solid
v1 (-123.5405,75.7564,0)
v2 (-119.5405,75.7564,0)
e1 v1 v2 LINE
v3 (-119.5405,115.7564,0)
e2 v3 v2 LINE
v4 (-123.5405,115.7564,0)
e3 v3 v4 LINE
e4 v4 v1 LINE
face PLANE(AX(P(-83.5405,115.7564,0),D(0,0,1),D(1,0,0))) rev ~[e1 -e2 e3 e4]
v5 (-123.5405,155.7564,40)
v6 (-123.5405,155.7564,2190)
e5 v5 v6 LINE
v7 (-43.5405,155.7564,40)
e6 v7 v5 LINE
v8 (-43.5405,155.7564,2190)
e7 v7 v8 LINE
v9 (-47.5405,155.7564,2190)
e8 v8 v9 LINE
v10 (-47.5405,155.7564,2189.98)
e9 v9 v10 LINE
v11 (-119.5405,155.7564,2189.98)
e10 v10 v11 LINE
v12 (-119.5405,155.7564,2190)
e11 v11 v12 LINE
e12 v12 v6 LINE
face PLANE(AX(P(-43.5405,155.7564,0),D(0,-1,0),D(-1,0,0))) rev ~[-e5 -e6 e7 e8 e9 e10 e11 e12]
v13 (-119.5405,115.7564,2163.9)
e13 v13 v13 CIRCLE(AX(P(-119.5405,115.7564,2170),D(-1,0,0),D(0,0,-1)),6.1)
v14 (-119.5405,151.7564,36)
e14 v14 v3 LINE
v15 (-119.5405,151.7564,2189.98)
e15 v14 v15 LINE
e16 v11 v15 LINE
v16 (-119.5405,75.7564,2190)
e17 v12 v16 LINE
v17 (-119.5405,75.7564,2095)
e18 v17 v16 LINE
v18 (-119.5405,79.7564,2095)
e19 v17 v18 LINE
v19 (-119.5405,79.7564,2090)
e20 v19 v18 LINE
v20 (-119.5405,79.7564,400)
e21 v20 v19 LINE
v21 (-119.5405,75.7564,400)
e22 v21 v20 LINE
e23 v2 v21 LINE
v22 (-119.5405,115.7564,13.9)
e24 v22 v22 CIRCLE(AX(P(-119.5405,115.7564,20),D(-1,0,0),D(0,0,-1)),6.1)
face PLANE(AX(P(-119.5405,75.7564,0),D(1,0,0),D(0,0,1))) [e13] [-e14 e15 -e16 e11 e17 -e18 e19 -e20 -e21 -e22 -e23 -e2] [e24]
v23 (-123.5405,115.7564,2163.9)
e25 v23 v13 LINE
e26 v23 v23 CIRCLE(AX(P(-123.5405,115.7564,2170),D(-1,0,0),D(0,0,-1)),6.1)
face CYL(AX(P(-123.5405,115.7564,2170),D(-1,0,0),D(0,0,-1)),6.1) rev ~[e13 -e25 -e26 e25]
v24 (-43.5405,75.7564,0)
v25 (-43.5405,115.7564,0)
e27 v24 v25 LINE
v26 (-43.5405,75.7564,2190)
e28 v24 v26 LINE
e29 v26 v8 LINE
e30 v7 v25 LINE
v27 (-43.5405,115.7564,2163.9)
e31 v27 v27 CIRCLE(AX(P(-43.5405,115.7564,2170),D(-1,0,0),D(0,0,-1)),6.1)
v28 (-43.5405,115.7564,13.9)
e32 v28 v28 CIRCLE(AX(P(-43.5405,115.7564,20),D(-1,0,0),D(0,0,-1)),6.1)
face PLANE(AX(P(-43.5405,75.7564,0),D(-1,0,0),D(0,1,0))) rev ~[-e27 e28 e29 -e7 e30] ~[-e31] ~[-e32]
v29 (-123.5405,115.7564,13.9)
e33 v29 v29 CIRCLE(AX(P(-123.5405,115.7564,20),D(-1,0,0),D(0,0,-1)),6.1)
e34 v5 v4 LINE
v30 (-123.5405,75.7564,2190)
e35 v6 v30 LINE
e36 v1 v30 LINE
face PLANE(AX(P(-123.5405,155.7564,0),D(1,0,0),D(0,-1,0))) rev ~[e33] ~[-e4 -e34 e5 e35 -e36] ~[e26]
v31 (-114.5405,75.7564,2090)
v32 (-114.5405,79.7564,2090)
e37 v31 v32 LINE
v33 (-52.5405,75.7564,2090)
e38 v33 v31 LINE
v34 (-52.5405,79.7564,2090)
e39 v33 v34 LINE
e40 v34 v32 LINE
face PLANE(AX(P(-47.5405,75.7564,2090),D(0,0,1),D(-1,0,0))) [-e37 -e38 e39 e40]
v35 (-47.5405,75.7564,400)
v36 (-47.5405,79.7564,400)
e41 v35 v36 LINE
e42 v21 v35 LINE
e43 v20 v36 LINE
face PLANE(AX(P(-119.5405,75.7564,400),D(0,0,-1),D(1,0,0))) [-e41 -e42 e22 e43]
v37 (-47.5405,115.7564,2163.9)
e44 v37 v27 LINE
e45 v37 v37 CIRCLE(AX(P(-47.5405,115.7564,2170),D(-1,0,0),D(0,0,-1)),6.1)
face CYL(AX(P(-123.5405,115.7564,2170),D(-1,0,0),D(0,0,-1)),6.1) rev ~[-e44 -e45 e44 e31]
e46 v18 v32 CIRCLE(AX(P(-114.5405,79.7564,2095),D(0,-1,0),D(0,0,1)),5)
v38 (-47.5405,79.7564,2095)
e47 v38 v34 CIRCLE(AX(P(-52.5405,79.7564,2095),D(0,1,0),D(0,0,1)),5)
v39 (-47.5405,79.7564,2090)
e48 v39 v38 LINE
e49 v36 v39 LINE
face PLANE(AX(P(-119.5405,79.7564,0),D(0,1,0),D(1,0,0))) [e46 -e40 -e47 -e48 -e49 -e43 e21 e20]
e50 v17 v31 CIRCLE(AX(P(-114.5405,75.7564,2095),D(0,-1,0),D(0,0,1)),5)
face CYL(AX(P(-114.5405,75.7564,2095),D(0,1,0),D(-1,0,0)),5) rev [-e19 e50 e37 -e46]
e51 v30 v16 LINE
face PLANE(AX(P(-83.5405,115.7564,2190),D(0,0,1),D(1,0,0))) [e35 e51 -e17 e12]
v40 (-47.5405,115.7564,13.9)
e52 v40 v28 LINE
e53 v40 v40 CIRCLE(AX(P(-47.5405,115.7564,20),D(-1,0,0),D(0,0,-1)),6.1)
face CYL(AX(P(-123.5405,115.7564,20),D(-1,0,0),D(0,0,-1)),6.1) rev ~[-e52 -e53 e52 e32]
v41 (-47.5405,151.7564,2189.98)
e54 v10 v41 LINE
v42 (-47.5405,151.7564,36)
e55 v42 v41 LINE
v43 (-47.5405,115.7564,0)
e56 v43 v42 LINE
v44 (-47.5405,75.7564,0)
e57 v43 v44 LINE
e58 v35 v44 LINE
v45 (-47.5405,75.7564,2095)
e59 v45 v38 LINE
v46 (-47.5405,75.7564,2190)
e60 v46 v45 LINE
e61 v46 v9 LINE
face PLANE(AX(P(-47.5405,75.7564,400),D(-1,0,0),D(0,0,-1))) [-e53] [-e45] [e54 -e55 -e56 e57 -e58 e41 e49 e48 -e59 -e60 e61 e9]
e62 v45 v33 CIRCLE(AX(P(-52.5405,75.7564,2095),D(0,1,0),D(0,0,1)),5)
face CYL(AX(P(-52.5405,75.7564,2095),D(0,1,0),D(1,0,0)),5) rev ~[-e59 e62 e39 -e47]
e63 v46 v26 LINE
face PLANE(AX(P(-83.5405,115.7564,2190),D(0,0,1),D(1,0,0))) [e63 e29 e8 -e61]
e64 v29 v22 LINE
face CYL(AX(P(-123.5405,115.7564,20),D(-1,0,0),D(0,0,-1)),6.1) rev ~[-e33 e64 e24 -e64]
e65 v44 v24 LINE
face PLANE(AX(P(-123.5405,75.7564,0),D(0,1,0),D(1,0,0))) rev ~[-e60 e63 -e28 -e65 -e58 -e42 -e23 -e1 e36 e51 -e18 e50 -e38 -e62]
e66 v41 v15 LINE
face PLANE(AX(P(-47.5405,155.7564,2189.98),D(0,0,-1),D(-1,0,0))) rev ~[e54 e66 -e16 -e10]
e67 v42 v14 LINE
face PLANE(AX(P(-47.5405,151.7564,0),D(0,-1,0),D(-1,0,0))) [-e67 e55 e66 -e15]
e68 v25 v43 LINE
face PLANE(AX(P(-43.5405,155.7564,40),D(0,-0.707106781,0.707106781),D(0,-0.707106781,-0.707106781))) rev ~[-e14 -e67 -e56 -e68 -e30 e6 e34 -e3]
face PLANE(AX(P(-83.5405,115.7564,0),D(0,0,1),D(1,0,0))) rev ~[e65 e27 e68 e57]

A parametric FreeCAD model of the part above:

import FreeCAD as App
import Part
import Sketcher
from FreeCAD import Vector
Q = App.Units.Quantity


def edges_at(feature, points):
    """Names of the edges that pass closest to the given points."""
    edges = feature.Shape.Edges
    near = lambda p: min(range(len(edges)), key=lambda i: edges[i].distToShape(Part.Vertex(*p))[0])
    return sorted({f"Edge{near(p) + 1}" for p in points})

doc = App.newDocument("Part")
body = doc.addObject("PartDesign::Body", "Body")

# Sketch on XY plane
sketch1 = body.newObject("Sketcher::SketchObject", "Sketch")
sketch1.AttachmentSupport = (doc.getObject("XY_Plane"), [""])
sketch1.MapMode = "FlatFace"
sketch1.addGeometry([
    Part.LineSegment(Vector(-123.5405, 155.7564, 0), Vector(-123.5405, 75.7564, 0)),  # 0
    Part.LineSegment(Vector(-123.5405, 75.7564, 0), Vector(-43.5405, 75.7564, 0)),  # 1
    Part.LineSegment(Vector(-43.5405, 75.7564, 0), Vector(-43.5405, 155.7564, 0)),  # 2
    Part.LineSegment(Vector(-43.5405, 155.7564, 0), Vector(-123.5405, 155.7564, 0)),  # 3
    Part.LineSegment(Vector(-47.5405, 79.7564, 0), Vector(-119.5405, 79.7564, 0)),  # 4
    Part.LineSegment(Vector(-119.5405, 79.7564, 0), Vector(-119.5405, 151.7564, 0)),  # 5
    Part.LineSegment(Vector(-119.5405, 151.7564, 0), Vector(-47.5405, 151.7564, 0)),  # 6
    Part.LineSegment(Vector(-47.5405, 151.7564, 0), Vector(-47.5405, 79.7564, 0)),  # 7
], False)
sketch1.addConstraint([
    Sketcher.Constraint("Coincident", 0, 2, 1, 1),
    Sketcher.Constraint("Coincident", 1, 2, 2, 1),
    Sketcher.Constraint("Coincident", 2, 2, 3, 1),
    Sketcher.Constraint("Coincident", 3, 2, 0, 1),
    Sketcher.Constraint("Coincident", 4, 2, 5, 1),
    Sketcher.Constraint("Coincident", 5, 2, 6, 1),
    Sketcher.Constraint("Coincident", 6, 2, 7, 1),
    Sketcher.Constraint("Coincident", 7, 2, 4, 1),
    Sketcher.Constraint("Vertical", 0),
    Sketcher.Constraint("Horizontal", 1),
    Sketcher.Constraint("Vertical", 2),
    Sketcher.Constraint("Horizontal", 3),
    Sketcher.Constraint("Horizontal", 4),
    Sketcher.Constraint("Vertical", 5),
    Sketcher.Constraint("Horizontal", 6),
    Sketcher.Constraint("Vertical", 7),
    Sketcher.Constraint("Equal", 3, 0),
    Sketcher.Constraint("Equal", 6, 5),
    Sketcher.Constraint("DistanceX", 1, 1, 1, 2, Q("80 mm")),
    Sketcher.Constraint("DistanceX", 4, 2, 4, 1, Q("72 mm")),
    Sketcher.Constraint("DistanceX", 0, 2, 4, 2, Q("4 mm")),
    Sketcher.Constraint("DistanceY", 0, 2, 4, 2, Q("4 mm")),
    Sketcher.Constraint("DistanceX", 0, 2, -1, 1, Q("123.5405 mm")),
    Sketcher.Constraint("DistanceY", -1, 1, 0, 2, Q("75.7564 mm")),
])
pad1 = body.newObject("PartDesign::Pad", "Pad")
pad1.Profile = sketch1
pad1.Length = 2190

# Sketch on YZ plane
sketch2 = body.newObject("Sketcher::SketchObject", "Sketch001")
sketch2.AttachmentSupport = (doc.getObject("YZ_Plane"), [""])
sketch2.MapMode = "FlatFace"
sketch2.AttachmentOffset = App.Placement(Vector(0, 0, -123.5405), App.Rotation())
sketch2.addGeometry([
    Part.Circle(Vector(115.7564, 20, 0), Vector(0, 0, 1), 6.1),
    Part.Circle(Vector(115.7564, 2170, 0), Vector(0, 0, 1), 6.1),
], False)
sketch2.addConstraint([
    Sketcher.Constraint("Equal", 0, 1),
    Sketcher.Constraint("Vertical", 0, 3, 1, 3),
    Sketcher.Constraint("Diameter", 0, Q("12.2 mm")),
    Sketcher.Constraint("DistanceY", -1, 1, 0, 3, Q("20 mm")),
    Sketcher.Constraint("DistanceY", -1, 1, 1, 3, Q("2170 mm")),
    Sketcher.Constraint("DistanceX", -1, 1, 0, 3, Q("115.7564 mm")),
])
pocket1 = body.newObject("PartDesign::Pocket", "Pocket")
pocket1.Profile = sketch2
pocket1.Type = "ThroughAll"
pocket1.Reversed = True

# Sketch on XZ plane
sketch3 = body.newObject("Sketcher::SketchObject", "Sketch002")
sketch3.AttachmentSupport = (doc.getObject("XZ_Plane"), [""])
sketch3.MapMode = "FlatFace"
sketch3.AttachmentOffset = App.Placement(Vector(0, 0, -155.7564), App.Rotation())
sketch3.addGeometry([
    Part.LineSegment(Vector(-119.5405, 2190, 0), Vector(-47.5405, 2190, 0)),
    Part.LineSegment(Vector(-47.5405, 2190, 0), Vector(-47.5405, 2189.99, 0)),
    Part.LineSegment(Vector(-47.5405, 2189.99, 0), Vector(-119.5405, 2189.99, 0)),
    Part.LineSegment(Vector(-119.5405, 2189.99, 0), Vector(-119.5405, 2190, 0)),
], False)
sketch3.addConstraint([
    Sketcher.Constraint("Coincident", 0, 2, 1, 1),
    Sketcher.Constraint("Coincident", 1, 2, 2, 1),
    Sketcher.Constraint("Coincident", 2, 2, 3, 1),
    Sketcher.Constraint("Coincident", 3, 2, 0, 1),
    Sketcher.Constraint("Horizontal", 0),
    Sketcher.Constraint("Vertical", 1),
    Sketcher.Constraint("Horizontal", 2),
    Sketcher.Constraint("Vertical", 3),
    Sketcher.Constraint("DistanceX", 0, 1, 0, 2, Q("72 mm")),
    Sketcher.Constraint("DistanceY", -1, 1, 0, 2, Q("2190 mm")),
    Sketcher.Constraint("DistanceY", 1, 2, 1, 1, Q("0.01 mm")),
    Sketcher.Constraint("DistanceX", 0, 2, -1, 1, Q("47.5405 mm")),
])
pocket2 = body.newObject("PartDesign::Pocket", "Pocket001")
pocket2.Profile = sketch3
pocket2.Length = 5
pocket2.Reversed = True

# Sketch on YZ plane
sketch4 = body.newObject("Sketcher::SketchObject", "Sketch003")
sketch4.AttachmentSupport = (doc.getObject("YZ_Plane"), [""])
sketch4.MapMode = "FlatFace"
sketch4.AttachmentOffset = App.Placement(Vector(0, 0, -43.5405), App.Rotation())
sketch4.addGeometry([
    Part.LineSegment(Vector(155.7564, 0, 0), Vector(155.7564, 40, 0)),
    Part.LineSegment(Vector(155.7564, 40, 0), Vector(115.7564, 0, 0)),
    Part.LineSegment(Vector(115.7564, 0, 0), Vector(155.7564, 0, 0)),
], False)
sketch4.addConstraint([
    Sketcher.Constraint("Coincident", 0, 2, 1, 1),
    Sketcher.Constraint("Coincident", 1, 2, 2, 1),
    Sketcher.Constraint("Coincident", 2, 2, 0, 1),
    Sketcher.Constraint("Vertical", 0),
    Sketcher.Constraint("Horizontal", 2),
    Sketcher.Constraint("PointOnObject", 1, 2, -1),
    Sketcher.Constraint("Equal", 2, 0),
    Sketcher.Constraint("DistanceX", 2, 1, 2, 2, Q("40 mm")),
    Sketcher.Constraint("DistanceX", -1, 1, 0, 2, Q("155.7564 mm")),
])
pocket3 = body.newObject("PartDesign::Pocket", "Pocket002")
pocket3.Profile = sketch4
pocket3.Type = "ThroughAll"

# Sketch on XZ plane
sketch5 = body.newObject("Sketcher::SketchObject", "Sketch004")
sketch5.AttachmentSupport = (doc.getObject("XZ_Plane"), [""])
sketch5.MapMode = "FlatFace"
sketch5.AttachmentOffset = App.Placement(Vector(0, 0, -75.7564), App.Rotation())
sketch5.addGeometry([
    Part.LineSegment(Vector(-119.5405, 2190, 0), Vector(-119.5405, 2090, 0)),  # 0
    Part.LineSegment(Vector(-119.5405, 2090, 0), Vector(-47.5405, 2090, 0)),  # 1
    Part.LineSegment(Vector(-47.5405, 2090, 0), Vector(-47.5405, 2190, 0)),  # 2
    Part.LineSegment(Vector(-47.5405, 2190, 0), Vector(-119.5405, 2190, 0)),  # 3
    Part.LineSegment(Vector(-119.5405, 400, 0), Vector(-119.5405, 0, 0)),  # 4
    Part.LineSegment(Vector(-119.5405, 0, 0), Vector(-47.5405, 0, 0)),  # 5
    Part.LineSegment(Vector(-47.5405, 0, 0), Vector(-47.5405, 400, 0)),  # 6
    Part.LineSegment(Vector(-47.5405, 400, 0), Vector(-119.5405, 400, 0)),  # 7
], False)
sketch5.addConstraint([
    Sketcher.Constraint("Coincident", 0, 2, 1, 1),
    Sketcher.Constraint("Coincident", 1, 2, 2, 1),
    Sketcher.Constraint("Coincident", 2, 2, 3, 1),
    Sketcher.Constraint("Coincident", 3, 2, 0, 1),
    Sketcher.Constraint("Coincident", 4, 2, 5, 1),
    Sketcher.Constraint("Coincident", 5, 2, 6, 1),
    Sketcher.Constraint("Coincident", 6, 2, 7, 1),
    Sketcher.Constraint("Coincident", 7, 2, 4, 1),
    Sketcher.Constraint("Vertical", 0),
    Sketcher.Constraint("Horizontal", 1),
    Sketcher.Constraint("Vertical", 2),
    Sketcher.Constraint("Horizontal", 3),
    Sketcher.Constraint("Vertical", 4),
    Sketcher.Constraint("Horizontal", 5),
    Sketcher.Constraint("Vertical", 6),
    Sketcher.Constraint("Horizontal", 7),
    Sketcher.Constraint("PointOnObject", 4, 2, -1),
    Sketcher.Constraint("Vertical", 3, 2, 4, 2),
    Sketcher.Constraint("Vertical", 2, 2, 5, 2),
    Sketcher.Constraint("DistanceX", 1, 1, 1, 2, Q("72 mm")),
    Sketcher.Constraint("DistanceY", 0, 2, 0, 1, Q("100 mm")),
    Sketcher.Constraint("DistanceY", 4, 2, 4, 1, Q("400 mm")),
    Sketcher.Constraint("DistanceY", -1, 1, 0, 2, Q("2090 mm")),
    Sketcher.Constraint("DistanceX", 0, 2, -1, 1, Q("119.5405 mm")),
])
pocket4 = body.newObject("PartDesign::Pocket", "Pocket003")
pocket4.Profile = sketch5
pocket4.Type = "UpToFirst"

# Sketch on XZ plane
sketch6 = body.newObject("Sketcher::SketchObject", "Sketch005")
sketch6.AttachmentSupport = (doc.getObject("XZ_Plane"), [""])
sketch6.MapMode = "FlatFace"
sketch6.AttachmentOffset = App.Placement(Vector(0, 0, -155.7564), App.Rotation())
sketch6.addGeometry([
    Part.LineSegment(Vector(-119.5405, 2189.99, 0), Vector(-47.5405, 2189.99, 0)),
    Part.LineSegment(Vector(-47.5405, 2189.99, 0), Vector(-47.5405, 2189.98, 0)),
    Part.LineSegment(Vector(-47.5405, 2189.98, 0), Vector(-119.5405, 2189.98, 0)),
    Part.LineSegment(Vector(-119.5405, 2189.98, 0), Vector(-119.5405, 2189.99, 0)),
], False)
sketch6.addConstraint([
    Sketcher.Constraint("Coincident", 0, 2, 1, 1),
    Sketcher.Constraint("Coincident", 1, 2, 2, 1),
    Sketcher.Constraint("Coincident", 2, 2, 3, 1),
    Sketcher.Constraint("Coincident", 3, 2, 0, 1),
    Sketcher.Constraint("Horizontal", 0),
    Sketcher.Constraint("Vertical", 1),
    Sketcher.Constraint("Horizontal", 2),
    Sketcher.Constraint("Vertical", 3),
    Sketcher.Constraint("DistanceX", 0, 1, 0, 2, Q("72 mm")),
    Sketcher.Constraint("DistanceY", 1, 2, 1, 1, Q("0.01 mm")),
    Sketcher.Constraint("DistanceY", -1, 1, 0, 2, Q("2189.99 mm")),
    Sketcher.Constraint("DistanceX", 0, 2, -1, 1, Q("47.5405 mm")),
])
pocket5 = body.newObject("PartDesign::Pocket", "Pocket004")
pocket5.Profile = sketch6
pocket5.Type = "UpToFirst"
pocket5.Reversed = True
doc.recompute()

fillet = body.newObject("PartDesign::Fillet", "Fillet")
fillet.Base = (pocket5, edges_at(pocket5, [(-119.54, 77.756, 2090), (-47.541, 77.756, 2090)]))
fillet.Radius = 5

doc.recompute()
